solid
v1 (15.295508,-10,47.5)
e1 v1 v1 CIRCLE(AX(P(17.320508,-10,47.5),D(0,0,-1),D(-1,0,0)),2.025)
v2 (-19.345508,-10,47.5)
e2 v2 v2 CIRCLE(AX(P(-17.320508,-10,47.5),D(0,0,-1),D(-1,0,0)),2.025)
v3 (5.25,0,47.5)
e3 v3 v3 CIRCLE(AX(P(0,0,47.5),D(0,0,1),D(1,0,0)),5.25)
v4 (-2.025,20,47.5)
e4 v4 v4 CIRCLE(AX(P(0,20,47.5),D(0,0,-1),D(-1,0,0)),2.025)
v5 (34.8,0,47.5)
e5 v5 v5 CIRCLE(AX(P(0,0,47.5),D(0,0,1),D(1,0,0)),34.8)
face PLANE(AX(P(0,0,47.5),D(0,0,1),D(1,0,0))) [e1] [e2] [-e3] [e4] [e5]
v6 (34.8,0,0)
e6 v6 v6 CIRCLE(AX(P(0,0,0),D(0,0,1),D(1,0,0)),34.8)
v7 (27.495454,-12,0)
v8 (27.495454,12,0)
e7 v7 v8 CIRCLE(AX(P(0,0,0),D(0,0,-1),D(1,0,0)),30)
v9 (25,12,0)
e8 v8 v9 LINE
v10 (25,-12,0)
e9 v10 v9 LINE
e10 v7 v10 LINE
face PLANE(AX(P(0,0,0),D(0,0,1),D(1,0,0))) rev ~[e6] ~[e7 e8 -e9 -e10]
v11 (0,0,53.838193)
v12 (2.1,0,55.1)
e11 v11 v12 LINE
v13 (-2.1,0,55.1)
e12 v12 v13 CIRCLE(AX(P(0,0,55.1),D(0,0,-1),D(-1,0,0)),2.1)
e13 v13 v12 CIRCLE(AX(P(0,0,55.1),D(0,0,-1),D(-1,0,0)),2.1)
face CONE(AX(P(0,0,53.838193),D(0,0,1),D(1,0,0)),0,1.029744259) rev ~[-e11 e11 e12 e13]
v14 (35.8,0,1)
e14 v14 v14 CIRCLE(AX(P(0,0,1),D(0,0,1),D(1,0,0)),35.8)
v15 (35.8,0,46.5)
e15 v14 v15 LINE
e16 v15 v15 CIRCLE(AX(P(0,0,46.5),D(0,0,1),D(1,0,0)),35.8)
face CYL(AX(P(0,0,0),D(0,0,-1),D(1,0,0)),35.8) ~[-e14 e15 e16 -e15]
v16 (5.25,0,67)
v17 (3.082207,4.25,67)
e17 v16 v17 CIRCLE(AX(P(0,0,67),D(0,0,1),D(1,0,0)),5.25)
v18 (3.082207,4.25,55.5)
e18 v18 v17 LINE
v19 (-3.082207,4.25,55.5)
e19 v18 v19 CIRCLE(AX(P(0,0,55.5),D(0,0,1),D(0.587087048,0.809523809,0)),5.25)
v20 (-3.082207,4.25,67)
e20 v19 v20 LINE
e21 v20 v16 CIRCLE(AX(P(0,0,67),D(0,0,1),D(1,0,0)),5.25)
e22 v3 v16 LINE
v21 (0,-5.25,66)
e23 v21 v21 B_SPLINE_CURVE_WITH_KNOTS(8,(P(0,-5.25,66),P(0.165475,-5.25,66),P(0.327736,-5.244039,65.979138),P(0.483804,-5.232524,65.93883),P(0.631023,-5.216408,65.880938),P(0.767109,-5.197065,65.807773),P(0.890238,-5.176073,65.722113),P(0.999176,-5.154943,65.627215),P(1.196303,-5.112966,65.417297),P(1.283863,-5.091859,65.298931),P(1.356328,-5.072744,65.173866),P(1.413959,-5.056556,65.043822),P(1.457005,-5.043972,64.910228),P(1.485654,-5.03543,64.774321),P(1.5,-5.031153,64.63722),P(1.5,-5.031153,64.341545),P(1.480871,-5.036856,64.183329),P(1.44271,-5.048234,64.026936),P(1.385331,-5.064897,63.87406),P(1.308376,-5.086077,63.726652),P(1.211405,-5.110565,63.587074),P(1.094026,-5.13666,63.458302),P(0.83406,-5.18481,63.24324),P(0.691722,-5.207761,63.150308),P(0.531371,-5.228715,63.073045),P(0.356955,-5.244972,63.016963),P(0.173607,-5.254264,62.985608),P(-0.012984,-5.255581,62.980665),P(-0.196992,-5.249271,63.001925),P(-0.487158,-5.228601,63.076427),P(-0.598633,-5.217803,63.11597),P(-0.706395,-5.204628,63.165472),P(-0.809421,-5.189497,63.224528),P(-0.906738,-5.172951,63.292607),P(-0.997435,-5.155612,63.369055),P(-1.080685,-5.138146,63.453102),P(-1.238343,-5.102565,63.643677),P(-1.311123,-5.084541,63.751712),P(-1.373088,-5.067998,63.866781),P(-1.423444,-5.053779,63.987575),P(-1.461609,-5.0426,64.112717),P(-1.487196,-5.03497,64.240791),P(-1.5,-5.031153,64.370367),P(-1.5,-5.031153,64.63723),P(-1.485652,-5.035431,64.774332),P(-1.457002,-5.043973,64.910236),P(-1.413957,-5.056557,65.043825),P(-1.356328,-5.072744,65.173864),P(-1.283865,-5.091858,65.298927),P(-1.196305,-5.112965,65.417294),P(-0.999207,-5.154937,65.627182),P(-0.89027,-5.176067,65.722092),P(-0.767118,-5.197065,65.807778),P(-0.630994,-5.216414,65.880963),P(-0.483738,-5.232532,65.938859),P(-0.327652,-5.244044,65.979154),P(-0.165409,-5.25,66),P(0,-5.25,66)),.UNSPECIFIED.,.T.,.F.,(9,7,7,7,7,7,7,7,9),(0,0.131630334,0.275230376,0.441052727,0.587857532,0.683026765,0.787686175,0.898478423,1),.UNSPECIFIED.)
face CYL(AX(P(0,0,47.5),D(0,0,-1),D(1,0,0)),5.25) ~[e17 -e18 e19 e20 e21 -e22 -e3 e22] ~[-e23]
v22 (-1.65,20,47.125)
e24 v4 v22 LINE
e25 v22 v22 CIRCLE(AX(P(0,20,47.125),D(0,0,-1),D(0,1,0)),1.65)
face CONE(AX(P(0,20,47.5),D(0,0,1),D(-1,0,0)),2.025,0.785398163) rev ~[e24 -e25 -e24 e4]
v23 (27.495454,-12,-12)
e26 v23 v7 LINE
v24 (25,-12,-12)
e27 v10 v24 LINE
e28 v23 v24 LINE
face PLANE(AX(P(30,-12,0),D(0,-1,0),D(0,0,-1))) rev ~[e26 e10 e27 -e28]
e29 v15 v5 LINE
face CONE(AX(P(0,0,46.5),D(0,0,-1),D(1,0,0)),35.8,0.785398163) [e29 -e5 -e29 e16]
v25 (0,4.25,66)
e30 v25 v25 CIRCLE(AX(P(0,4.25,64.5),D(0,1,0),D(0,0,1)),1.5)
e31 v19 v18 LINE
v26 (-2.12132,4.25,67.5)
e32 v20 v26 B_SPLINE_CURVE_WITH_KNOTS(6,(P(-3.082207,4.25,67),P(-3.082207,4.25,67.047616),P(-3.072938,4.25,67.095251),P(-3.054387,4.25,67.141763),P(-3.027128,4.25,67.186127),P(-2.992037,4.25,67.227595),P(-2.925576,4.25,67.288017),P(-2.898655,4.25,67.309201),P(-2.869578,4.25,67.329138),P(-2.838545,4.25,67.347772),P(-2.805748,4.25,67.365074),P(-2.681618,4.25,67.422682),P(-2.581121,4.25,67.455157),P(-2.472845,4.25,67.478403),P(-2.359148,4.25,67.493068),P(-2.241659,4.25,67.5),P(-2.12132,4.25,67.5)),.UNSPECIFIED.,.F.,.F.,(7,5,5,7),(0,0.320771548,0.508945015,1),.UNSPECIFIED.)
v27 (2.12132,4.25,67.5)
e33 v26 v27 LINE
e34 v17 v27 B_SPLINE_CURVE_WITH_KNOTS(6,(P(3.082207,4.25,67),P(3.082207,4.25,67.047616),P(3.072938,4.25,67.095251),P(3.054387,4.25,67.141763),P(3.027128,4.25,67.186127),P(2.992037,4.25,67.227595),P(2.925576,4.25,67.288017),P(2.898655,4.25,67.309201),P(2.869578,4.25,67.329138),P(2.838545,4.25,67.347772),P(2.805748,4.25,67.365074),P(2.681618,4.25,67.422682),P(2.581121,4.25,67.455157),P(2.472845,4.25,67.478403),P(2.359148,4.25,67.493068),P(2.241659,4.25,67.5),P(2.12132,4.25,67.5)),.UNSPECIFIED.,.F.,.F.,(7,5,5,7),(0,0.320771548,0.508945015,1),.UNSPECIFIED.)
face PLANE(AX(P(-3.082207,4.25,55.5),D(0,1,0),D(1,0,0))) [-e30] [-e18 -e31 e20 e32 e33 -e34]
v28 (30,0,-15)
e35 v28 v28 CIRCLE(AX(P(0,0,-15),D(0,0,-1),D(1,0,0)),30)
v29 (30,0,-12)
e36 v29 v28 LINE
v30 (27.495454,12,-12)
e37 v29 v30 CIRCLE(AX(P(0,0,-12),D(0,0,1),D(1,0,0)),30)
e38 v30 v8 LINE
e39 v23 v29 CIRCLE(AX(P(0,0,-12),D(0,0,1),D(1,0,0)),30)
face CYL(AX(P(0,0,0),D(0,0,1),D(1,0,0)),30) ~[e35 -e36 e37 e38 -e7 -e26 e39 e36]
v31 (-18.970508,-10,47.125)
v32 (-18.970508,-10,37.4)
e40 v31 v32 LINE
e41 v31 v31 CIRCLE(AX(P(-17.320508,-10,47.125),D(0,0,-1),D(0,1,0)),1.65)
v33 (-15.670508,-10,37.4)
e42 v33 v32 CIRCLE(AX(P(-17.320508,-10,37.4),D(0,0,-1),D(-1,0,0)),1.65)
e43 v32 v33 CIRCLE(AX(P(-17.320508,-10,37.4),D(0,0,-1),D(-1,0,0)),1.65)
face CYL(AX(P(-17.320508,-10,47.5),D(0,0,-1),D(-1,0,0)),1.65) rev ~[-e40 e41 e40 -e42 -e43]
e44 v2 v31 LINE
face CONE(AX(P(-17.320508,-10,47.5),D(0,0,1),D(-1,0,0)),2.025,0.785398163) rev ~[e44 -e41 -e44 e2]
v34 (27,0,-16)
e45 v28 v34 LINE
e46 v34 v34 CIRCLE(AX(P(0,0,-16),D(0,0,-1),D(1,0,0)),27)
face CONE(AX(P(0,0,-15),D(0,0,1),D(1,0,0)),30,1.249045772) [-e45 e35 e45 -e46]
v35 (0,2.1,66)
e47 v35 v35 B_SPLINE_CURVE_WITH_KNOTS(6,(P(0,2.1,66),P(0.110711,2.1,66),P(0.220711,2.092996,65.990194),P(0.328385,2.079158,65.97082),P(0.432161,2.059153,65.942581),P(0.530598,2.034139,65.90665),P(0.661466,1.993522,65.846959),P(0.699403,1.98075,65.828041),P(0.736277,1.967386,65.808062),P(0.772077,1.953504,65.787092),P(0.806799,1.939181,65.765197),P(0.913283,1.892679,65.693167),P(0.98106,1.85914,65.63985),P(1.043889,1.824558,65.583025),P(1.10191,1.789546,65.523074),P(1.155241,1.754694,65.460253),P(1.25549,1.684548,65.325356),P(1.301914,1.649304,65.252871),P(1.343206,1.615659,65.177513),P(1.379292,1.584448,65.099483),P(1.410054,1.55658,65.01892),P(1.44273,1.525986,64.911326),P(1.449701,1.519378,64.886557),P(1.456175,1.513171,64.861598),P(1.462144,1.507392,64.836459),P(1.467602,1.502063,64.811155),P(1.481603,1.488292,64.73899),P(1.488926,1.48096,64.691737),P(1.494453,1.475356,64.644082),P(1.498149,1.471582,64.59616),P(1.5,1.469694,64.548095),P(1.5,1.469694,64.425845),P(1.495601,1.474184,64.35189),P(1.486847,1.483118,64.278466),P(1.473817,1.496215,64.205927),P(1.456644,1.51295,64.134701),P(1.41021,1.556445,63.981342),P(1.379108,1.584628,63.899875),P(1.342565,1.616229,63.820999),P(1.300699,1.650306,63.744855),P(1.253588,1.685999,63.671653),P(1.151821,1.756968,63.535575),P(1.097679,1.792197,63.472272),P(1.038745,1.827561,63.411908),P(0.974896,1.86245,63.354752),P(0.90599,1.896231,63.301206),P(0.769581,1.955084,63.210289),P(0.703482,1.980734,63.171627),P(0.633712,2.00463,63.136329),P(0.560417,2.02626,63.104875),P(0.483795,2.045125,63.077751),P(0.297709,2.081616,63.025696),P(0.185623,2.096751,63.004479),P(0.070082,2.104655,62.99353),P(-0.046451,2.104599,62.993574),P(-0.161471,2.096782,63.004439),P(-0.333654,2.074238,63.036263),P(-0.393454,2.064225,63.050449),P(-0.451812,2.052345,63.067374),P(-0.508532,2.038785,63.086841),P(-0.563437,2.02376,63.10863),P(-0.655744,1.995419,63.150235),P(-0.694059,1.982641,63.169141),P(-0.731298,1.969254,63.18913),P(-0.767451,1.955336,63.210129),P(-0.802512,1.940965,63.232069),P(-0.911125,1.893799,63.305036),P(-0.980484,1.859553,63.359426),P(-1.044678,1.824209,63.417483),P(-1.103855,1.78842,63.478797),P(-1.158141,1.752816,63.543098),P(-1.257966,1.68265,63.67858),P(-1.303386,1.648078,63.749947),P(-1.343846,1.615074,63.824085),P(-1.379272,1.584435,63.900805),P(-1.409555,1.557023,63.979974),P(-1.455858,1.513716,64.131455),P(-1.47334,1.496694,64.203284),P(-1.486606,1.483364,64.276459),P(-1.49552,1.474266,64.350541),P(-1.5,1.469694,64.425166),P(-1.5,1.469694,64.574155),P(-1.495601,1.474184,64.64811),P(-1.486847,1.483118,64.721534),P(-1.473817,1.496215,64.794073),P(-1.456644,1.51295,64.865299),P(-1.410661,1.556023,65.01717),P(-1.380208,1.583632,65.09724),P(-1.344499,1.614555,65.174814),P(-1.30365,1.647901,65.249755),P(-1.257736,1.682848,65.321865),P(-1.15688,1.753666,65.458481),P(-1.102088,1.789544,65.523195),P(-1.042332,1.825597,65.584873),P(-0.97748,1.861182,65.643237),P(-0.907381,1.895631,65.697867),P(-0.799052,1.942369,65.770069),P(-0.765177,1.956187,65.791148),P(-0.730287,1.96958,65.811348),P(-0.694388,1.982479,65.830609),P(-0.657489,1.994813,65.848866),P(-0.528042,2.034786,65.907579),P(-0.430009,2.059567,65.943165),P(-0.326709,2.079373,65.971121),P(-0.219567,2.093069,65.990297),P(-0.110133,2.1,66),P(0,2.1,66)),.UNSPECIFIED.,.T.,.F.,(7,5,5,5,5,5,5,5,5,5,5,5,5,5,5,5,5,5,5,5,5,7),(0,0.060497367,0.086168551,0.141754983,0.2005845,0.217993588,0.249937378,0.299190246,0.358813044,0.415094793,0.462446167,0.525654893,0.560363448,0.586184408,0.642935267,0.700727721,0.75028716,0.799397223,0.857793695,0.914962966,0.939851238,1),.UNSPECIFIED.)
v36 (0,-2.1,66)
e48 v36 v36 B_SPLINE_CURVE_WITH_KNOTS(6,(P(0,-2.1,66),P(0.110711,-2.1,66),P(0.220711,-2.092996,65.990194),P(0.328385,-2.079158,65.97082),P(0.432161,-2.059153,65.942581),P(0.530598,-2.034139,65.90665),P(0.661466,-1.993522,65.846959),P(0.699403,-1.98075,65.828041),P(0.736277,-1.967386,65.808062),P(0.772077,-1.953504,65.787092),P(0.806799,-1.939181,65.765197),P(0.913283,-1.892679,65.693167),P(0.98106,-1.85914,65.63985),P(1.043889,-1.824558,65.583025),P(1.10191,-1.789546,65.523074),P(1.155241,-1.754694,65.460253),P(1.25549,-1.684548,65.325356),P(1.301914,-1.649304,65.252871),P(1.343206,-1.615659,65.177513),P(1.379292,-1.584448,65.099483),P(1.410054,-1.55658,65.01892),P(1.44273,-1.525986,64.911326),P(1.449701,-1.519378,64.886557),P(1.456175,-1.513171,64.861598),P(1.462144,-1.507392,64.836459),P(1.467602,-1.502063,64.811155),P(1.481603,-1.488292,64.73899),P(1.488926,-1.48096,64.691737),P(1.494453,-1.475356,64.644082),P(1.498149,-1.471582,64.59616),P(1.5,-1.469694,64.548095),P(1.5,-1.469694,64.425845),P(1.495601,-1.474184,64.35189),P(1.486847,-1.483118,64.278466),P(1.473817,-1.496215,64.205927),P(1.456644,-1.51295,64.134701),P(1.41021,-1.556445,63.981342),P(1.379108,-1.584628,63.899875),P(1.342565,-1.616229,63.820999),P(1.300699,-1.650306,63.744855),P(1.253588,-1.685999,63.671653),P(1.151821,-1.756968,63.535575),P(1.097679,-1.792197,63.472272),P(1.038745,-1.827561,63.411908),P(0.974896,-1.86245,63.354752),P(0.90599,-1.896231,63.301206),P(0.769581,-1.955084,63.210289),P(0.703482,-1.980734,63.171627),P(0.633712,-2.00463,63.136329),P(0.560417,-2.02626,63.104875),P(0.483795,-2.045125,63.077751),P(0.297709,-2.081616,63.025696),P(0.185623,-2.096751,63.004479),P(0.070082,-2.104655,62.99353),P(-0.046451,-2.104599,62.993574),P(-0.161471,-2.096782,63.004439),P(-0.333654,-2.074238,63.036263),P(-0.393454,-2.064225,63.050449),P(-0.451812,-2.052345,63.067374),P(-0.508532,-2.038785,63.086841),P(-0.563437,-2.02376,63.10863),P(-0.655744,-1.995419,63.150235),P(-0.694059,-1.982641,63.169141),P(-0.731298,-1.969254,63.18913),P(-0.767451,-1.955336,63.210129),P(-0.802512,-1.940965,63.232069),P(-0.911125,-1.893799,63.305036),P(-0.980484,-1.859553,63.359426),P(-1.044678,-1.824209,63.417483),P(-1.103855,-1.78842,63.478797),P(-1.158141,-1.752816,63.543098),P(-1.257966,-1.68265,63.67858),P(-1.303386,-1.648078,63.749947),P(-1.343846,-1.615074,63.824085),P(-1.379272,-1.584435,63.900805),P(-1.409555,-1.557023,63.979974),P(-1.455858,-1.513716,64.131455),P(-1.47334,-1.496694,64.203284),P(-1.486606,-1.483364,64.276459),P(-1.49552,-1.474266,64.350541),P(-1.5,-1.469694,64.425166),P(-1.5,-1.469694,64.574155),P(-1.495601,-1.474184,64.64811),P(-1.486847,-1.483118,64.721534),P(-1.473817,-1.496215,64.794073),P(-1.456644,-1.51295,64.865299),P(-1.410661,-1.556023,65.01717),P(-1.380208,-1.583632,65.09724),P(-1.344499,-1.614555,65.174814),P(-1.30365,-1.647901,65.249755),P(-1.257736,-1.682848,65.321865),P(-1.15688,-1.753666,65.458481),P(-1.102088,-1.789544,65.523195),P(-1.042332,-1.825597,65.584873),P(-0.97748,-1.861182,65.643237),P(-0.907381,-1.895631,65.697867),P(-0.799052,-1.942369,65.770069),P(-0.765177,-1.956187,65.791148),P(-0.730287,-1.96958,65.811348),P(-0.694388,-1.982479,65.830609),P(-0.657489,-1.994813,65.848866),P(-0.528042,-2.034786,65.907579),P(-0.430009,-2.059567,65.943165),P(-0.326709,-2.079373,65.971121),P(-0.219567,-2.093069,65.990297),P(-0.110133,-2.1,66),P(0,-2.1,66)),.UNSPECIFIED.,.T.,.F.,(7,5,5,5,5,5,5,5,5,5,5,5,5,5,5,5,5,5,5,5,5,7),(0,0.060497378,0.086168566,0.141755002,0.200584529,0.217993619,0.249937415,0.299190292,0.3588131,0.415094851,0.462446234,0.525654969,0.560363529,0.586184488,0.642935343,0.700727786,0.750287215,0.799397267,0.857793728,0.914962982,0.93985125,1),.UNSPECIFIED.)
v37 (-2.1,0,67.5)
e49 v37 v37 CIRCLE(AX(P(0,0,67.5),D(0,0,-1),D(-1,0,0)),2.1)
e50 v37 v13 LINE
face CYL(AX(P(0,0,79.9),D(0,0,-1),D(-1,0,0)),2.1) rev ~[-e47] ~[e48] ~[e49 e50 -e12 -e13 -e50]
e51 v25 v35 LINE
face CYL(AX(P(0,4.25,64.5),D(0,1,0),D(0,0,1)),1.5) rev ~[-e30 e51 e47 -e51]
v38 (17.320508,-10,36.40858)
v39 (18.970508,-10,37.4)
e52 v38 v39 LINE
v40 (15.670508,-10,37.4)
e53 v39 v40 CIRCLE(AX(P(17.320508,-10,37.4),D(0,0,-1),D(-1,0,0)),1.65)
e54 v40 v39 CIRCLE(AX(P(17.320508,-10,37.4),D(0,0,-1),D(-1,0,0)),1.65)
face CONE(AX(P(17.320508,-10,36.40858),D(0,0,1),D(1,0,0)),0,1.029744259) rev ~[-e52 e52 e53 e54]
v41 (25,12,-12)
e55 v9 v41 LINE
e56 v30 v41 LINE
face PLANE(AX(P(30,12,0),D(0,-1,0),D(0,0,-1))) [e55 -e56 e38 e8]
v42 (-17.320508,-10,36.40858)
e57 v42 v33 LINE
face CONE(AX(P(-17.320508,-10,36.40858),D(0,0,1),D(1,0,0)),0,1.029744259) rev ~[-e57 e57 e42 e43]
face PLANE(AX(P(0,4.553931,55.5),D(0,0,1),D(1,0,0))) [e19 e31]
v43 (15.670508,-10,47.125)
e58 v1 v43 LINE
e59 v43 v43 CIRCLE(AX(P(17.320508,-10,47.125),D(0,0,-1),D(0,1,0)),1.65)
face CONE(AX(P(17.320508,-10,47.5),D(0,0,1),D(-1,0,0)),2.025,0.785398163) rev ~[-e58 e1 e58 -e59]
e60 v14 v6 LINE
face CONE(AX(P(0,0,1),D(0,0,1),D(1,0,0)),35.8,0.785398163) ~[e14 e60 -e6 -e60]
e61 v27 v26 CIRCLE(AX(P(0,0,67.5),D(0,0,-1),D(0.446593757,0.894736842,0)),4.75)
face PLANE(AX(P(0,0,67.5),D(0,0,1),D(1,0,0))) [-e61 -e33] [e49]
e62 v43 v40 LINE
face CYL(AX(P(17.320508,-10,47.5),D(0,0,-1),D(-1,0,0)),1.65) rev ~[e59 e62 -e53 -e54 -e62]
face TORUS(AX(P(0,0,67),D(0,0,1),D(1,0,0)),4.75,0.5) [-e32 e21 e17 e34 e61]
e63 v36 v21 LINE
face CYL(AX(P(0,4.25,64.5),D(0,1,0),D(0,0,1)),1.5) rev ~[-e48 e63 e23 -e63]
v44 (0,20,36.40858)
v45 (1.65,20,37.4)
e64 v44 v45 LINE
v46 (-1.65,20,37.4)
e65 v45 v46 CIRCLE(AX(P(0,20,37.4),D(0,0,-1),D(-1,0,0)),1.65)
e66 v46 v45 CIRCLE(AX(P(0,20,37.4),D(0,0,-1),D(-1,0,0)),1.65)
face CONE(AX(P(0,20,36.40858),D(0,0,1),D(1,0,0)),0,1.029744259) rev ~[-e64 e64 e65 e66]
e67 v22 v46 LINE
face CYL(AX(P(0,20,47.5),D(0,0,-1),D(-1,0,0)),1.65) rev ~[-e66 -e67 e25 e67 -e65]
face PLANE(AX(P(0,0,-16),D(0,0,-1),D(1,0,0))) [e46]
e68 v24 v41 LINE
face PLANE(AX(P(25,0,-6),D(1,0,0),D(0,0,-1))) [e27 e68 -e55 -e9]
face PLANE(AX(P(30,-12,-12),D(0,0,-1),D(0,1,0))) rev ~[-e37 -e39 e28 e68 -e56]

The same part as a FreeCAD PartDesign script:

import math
import FreeCAD as App
import Part
import Sketcher
from FreeCAD import Vector
Q = App.Units.Quantity


def edges_at(feature, points):
    """Names of the edges that pass closest to the given points."""
    edges = feature.Shape.Edges
    near = lambda p: min(range(len(edges)), key=lambda i: edges[i].distToShape(Part.Vertex(*p))[0])
    return sorted({f"Edge{near(p) + 1}" for p in points})


def add_polygon(sketch, points):
    """Adds a closed chain of lines whose ends are joined by coincident constraints."""
    first, n = sketch.GeometryCount, len(points)
    for a, b in zip(points, points[1:] + points[:1]):
        sketch.addGeometry(Part.LineSegment(App.Vector(*a, 0), App.Vector(*b, 0)), False)
    for i in range(n):
        sketch.addConstraint(Sketcher.Constraint("Coincident", first + i, 2, first + (i + 1) % n, 1))

doc = App.newDocument("Part")
body = doc.addObject("PartDesign::Body", "Body")

# Sketch on XY plane
sketch1 = body.newObject("Sketcher::SketchObject", "Sketch")
sketch1.AttachmentSupport = (doc.getObject("XY_Plane"), [""])
sketch1.MapMode = "FlatFace"
sketch1.addGeometry(Part.Circle(Vector(0, 0, 0), Vector(0, 0, 1), 36), False)
sketch1.addConstraint([
    Sketcher.Constraint("Coincident", 0, 3, -1, 1),
    Sketcher.Constraint("Diameter", 0, Q("71.6 mm")),
])
pad1 = body.newObject("PartDesign::Pad", "Pad")
pad1.Profile = sketch1
pad1.Length = 47.5

# Sketch on XY plane
sketch2 = body.newObject("Sketcher::SketchObject", "Sketch001")
sketch2.AttachmentSupport = (doc.getObject("XY_Plane"), [""])
sketch2.MapMode = "FlatFace"
sketch2.AttachmentOffset = App.Placement(Vector(0, 0, 47.5), App.Rotation())
sketch2.addGeometry([
    Part.Circle(Vector(0, 20, 0), Vector(0, 0, 1), 1.6),
    Part.Circle(Vector(17.3, -10, 0), Vector(0, 0, 1), 1.6),
    Part.Circle(Vector(-17.3, -10, 0), Vector(0, 0, 1), 1.6),
], False)
sketch2.addConstraint([
    Sketcher.Constraint("Equal", 0, 1),
    Sketcher.Constraint("Equal", 1, 2),
    Sketcher.Constraint("Symmetric", 1, 3, 2, 3, -2),
    Sketcher.Constraint("PointOnObject", 0, 3, -2),
    Sketcher.Constraint("Diameter", 0, Q("3.3 mm")),
    Sketcher.Constraint("DistanceY", -1, 1, 0, 3, Q("20 mm")),
    Sketcher.Constraint("DistanceY", 1, 3, -1, 1, Q("10 mm")),
    Sketcher.Constraint("DistanceX", -1, 1, 1, 3, Q("17.320508 mm")),
])
doc.recompute()
hole = body.newObject("PartDesign::Hole", "Hole")
hole.Profile = sketch2
hole.ThreadType = "None"
hole.Diameter = 3.3
hole.DepthType = "Dimension"
hole.Depth = 10.1
hole.DrillPoint = "Angled"
hole.DrillPointAngle = 118
hole.HoleCutType = "Countersink"
hole.HoleCutDiameter = 4.05
hole.HoleCutCountersinkAngle = 90
doc.recompute()

chamfer = body.newObject("PartDesign::Chamfer", "Chamfer")
chamfer.Base = (hole, edges_at(hole, [(-35.8, 0, 0), (-35.8, 0, 47.5)]))
chamfer.Size = 1

# Sketch on XY plane
sketch3 = body.newObject("Sketcher::SketchObject", "Sketch002")
sketch3.AttachmentSupport = (doc.getObject("XY_Plane"), [""])
sketch3.MapMode = "FlatFace"
sketch3.addGeometry(Part.Circle(Vector(0, 0, 0), Vector(0, 0, 1), 30), False)
sketch3.addConstraint([
    Sketcher.Constraint("Coincident", 0, 3, -1, 1),
    Sketcher.Constraint("Diameter", 0, Q("60 mm")),
])
pad2 = body.newObject("PartDesign::Pad", "Pad001")
pad2.Profile = sketch3
pad2.Length = 16
pad2.Reversed = True

# Sketch on XY plane
sketch4 = body.newObject("Sketcher::SketchObject", "Sketch003")
sketch4.AttachmentSupport = (doc.getObject("XY_Plane"), [""])
sketch4.MapMode = "FlatFace"
sketch4.AttachmentOffset = App.Placement(Vector(0, 0, 47.5), App.Rotation())
sketch4.addGeometry(Part.Circle(Vector(0, 0, 0), Vector(0, 0, 1), 5), False)
sketch4.addConstraint([
    Sketcher.Constraint("Coincident", 0, 3, -1, 1),
    Sketcher.Constraint("Diameter", 0, Q("10.5 mm")),
])
pad3 = body.newObject("PartDesign::Pad", "Pad002")
pad3.Profile = sketch4
pad3.Length = 20
doc.recompute()

fillet = body.newObject("PartDesign::Fillet", "Fillet")
fillet.Base = (pad3, edges_at(pad3, [(-5.25, 0, 67.5)]))
fillet.Radius = 0.5

# Sketch on XY plane
sketch5 = body.newObject("Sketcher::SketchObject", "Sketch004")
sketch5.AttachmentSupport = (doc.getObject("XY_Plane"), [""])
sketch5.MapMode = "FlatFace"
sketch5.AttachmentOffset = App.Placement(Vector(0, 0, 67.5), App.Rotation())
sketch5.addGeometry(Part.Circle(Vector(0, 0, 0), Vector(0, 0, 1), 2.1), False)
sketch5.addConstraint([
    Sketcher.Constraint("Coincident", 0, 3, -1, 1),
    Sketcher.Constraint("Diameter", 0, Q("4.2 mm")),
])
doc.recompute()
hole2 = body.newObject("PartDesign::Hole", "Hole001")
hole2.Profile = sketch5
hole2.ThreadType = "None"
hole2.Diameter = 4.2
hole2.DepthType = "Dimension"
hole2.Depth = 12.4
hole2.DrillPoint = "Angled"
hole2.DrillPointAngle = 118

# Sketch on XY plane
sketch6 = body.newObject("Sketcher::SketchObject", "Sketch005")
sketch6.AttachmentSupport = (doc.getObject("XY_Plane"), [""])
sketch6.MapMode = "FlatFace"
sketch6.AttachmentOffset = App.Placement(Vector(0, 0, 55.5), App.Rotation())
sketch6.addGeometry([
    Part.LineSegment(Vector(-3, 4, 0), Vector(3, 4, 0)),
    Part.ArcOfCircle(Part.Circle(Vector(0, 0, 0), Vector(0, 0, 1), 5), math.radians(54), math.radians(126)),
], False)
sketch6.addConstraint([
    Sketcher.Constraint("Coincident", 0, 1, 1, 2),
    Sketcher.Constraint("Coincident", 1, 1, 0, 2),
    Sketcher.Constraint("Horizontal", 0),
    Sketcher.Constraint("Coincident", 1, 3, -1, 1),
    Sketcher.Constraint("Radius", 1, Q("5.25 mm")),
    Sketcher.Constraint("DistanceY", -1, 1, 0, 1, Q("4.25 mm")),
])
pocket1 = body.newObject("PartDesign::Pocket", "Pocket")
pocket1.Profile = sketch6
pocket1.Length = 12
pocket1.Reversed = True

# Sketch on XZ plane
sketch7 = body.newObject("Sketcher::SketchObject", "Sketch006")
sketch7.AttachmentSupport = (doc.getObject("XZ_Plane"), [""])
sketch7.MapMode = "FlatFace"
sketch7.AttachmentOffset = App.Placement(Vector(0, 0, -4.25), App.Rotation())
sketch7.addGeometry(Part.Circle(Vector(0, 64.5, 0), Vector(0, 0, 1), 1.5), False)
sketch7.addConstraint([
    Sketcher.Constraint("PointOnObject", 0, 3, -2),
    Sketcher.Constraint("Diameter", 0, Q("3 mm")),
    Sketcher.Constraint("DistanceY", -1, 1, 0, 3, Q("64.5 mm")),
])
pocket2 = body.newObject("PartDesign::Pocket", "Pocket001")
pocket2.Profile = sketch7
pocket2.Type = "ThroughAll"
pocket2.Reversed = True

# Sketch on YZ plane
sketch8 = body.newObject("Sketcher::SketchObject", "Sketch007")
sketch8.AttachmentSupport = (doc.getObject("YZ_Plane"), [""])
sketch8.MapMode = "FlatFace"
sketch8.AttachmentOffset = App.Placement(Vector(0, 0, 30), App.Rotation())
add_polygon(sketch8, [(12, 0), (-12, 0), (-12, -12), (12, -12)])  # lines 0-3
sketch8.addConstraint([
    Sketcher.Constraint("Horizontal", 0),
    Sketcher.Constraint("Vertical", 1),
    Sketcher.Constraint("Horizontal", 2),
    Sketcher.Constraint("Vertical", 3),
    Sketcher.Constraint("Symmetric", 0, 2, 3, 2, -1, 1),
    Sketcher.Constraint("DistanceX", 0, 2, 0, 1, Q("24 mm")),
    Sketcher.Constraint("DistanceY", 1, 2, 1, 1, Q("12 mm")),
])
pocket3 = body.newObject("PartDesign::Pocket", "Pocket002")
pocket3.Profile = sketch8
pocket3.Length = 5
doc.recompute()

chamfer2 = body.newObject("PartDesign::Chamfer", "Chamfer001")
chamfer2.Base = (pocket3, edges_at(pocket3, [(-30, 0, -16)]))
chamfer2.ChamferType = "Two distances"
chamfer2.Size = 1
chamfer2.Size2 = 3

doc.recompute()
